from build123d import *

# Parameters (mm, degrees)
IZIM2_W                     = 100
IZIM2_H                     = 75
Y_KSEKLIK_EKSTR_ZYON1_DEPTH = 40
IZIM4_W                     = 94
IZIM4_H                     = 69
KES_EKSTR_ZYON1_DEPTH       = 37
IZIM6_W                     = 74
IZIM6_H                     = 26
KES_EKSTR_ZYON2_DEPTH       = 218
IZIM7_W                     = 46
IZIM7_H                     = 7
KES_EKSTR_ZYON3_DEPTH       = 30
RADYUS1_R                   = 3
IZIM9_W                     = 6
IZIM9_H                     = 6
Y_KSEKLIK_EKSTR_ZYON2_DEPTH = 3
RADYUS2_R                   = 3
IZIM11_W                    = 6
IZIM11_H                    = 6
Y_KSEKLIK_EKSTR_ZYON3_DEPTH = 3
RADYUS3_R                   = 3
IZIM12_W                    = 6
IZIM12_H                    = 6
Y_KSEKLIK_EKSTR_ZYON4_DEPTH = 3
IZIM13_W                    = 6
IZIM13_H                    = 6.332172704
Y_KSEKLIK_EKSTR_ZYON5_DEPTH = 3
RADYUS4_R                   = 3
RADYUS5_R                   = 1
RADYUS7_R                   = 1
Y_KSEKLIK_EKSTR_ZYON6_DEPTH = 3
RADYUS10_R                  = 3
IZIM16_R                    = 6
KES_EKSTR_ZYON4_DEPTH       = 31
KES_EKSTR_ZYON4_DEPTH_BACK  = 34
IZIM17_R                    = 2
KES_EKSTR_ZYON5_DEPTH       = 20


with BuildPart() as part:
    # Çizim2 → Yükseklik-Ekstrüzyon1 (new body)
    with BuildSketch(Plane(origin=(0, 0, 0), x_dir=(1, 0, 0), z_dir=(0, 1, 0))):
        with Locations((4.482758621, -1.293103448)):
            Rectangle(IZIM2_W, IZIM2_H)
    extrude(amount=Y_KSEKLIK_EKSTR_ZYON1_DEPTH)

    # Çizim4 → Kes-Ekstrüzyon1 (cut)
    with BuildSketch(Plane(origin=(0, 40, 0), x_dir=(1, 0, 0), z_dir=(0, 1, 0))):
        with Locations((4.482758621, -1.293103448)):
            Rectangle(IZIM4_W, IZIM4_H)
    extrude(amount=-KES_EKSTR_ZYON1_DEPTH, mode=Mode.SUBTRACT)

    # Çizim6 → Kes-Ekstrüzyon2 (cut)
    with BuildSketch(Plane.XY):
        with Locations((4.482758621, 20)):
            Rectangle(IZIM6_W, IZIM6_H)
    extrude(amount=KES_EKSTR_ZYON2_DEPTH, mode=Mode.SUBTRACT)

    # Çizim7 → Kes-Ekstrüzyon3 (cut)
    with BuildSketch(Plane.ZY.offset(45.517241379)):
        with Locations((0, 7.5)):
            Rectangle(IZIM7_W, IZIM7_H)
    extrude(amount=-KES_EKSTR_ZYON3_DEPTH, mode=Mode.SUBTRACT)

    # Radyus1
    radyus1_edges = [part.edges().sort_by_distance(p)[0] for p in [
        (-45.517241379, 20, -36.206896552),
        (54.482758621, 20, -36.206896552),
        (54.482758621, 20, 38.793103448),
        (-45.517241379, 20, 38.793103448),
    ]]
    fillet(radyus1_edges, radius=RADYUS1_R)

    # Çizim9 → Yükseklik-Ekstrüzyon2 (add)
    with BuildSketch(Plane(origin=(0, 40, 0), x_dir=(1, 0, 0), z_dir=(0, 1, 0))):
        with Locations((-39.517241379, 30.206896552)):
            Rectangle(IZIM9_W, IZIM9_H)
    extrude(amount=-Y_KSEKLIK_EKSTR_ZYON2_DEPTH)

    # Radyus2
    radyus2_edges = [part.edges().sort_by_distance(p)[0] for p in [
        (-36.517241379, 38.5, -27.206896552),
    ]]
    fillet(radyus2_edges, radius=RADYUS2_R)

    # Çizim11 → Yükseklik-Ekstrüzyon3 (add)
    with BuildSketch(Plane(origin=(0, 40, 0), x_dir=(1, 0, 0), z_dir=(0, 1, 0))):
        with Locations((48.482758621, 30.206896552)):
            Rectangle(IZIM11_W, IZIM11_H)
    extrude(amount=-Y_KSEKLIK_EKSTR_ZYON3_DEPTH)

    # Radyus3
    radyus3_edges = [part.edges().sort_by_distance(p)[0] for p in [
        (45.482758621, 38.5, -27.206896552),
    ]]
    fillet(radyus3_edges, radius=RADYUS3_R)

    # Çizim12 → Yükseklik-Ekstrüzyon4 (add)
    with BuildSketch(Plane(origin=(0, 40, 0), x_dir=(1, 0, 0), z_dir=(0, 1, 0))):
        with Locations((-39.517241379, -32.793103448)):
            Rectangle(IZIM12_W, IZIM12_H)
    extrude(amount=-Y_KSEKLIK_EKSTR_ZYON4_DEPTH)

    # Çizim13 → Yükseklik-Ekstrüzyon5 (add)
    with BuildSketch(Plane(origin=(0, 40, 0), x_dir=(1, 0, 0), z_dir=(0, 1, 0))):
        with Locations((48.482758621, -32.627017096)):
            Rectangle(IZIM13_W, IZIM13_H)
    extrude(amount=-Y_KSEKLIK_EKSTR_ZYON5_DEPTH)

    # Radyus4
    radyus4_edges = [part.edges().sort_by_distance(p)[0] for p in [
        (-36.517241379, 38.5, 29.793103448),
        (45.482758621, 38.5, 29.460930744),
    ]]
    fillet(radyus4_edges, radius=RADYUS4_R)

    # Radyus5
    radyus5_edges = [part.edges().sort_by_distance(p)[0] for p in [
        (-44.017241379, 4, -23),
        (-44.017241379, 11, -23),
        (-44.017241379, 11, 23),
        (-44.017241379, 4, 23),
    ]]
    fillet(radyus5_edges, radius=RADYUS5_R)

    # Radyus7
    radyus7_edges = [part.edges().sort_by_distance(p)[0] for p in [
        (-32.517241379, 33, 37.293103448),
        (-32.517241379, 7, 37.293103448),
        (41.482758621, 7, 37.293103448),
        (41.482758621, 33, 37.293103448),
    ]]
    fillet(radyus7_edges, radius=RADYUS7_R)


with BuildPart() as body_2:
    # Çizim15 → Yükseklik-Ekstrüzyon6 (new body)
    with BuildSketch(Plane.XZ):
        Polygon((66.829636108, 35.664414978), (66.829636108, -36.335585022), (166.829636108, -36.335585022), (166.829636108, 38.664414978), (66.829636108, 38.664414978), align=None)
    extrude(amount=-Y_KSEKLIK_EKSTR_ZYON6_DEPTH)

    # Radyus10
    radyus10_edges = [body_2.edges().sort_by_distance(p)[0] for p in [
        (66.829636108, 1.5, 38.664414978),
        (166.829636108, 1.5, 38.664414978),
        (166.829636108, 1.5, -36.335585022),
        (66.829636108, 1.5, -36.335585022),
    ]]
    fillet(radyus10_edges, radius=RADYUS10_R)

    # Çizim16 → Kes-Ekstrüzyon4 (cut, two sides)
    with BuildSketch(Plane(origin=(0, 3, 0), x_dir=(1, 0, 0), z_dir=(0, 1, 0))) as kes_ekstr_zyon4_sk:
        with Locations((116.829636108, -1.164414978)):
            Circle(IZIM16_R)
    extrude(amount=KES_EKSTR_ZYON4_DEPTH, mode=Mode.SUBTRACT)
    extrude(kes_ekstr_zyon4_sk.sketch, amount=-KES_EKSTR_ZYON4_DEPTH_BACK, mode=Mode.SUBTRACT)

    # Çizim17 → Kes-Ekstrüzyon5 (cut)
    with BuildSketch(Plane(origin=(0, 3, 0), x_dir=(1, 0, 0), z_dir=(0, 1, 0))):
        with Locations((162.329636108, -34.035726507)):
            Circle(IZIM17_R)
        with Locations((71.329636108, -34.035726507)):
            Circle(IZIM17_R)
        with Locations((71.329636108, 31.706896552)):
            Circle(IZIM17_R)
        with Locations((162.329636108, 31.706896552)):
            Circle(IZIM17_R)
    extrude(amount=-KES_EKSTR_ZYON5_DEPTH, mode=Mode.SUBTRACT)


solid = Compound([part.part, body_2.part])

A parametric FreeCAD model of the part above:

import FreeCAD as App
import Part
import Sketcher
Q = App.Units.Quantity


def edges_at(feature, points):
    """Names of the edges that pass closest to the given points."""
    edges = feature.Shape.Edges
    near = lambda p: min(range(len(edges)), key=lambda i: edges[i].distToShape(Part.Vertex(*p))[0])
    return sorted({f"Edge{near(p) + 1}" for p in points})


def add_polygon(sketch, points):
    """Adds a closed chain of lines whose ends are joined by coincident constraints."""
    first, n = sketch.GeometryCount, len(points)
    for a, b in zip(points, points[1:] + points[:1]):
        sketch.addGeometry(Part.LineSegment(App.Vector(*a, 0), App.Vector(*b, 0)), False)
    for i in range(n):
        sketch.addConstraint(Sketcher.Constraint("Coincident", first + i, 2, first + (i + 1) % n, 1))

doc = App.newDocument("Part")
body = doc.addObject("PartDesign::Body", "Body")

# Sketch on XZ plane
sketch1 = doc.addObject("Sketcher::SketchObject", "Sketch")
body.addObject(sketch1)
sketch1.AttachmentSupport = (doc.XZ_Plane, [""])
sketch1.MapMode = "FlatFace"
add_polygon(sketch1, [(-46, -36), (-46, 39), (54, 39), (54, -36)])  # lines 0-3
sketch1.addConstraint([
    Sketcher.Constraint("Vertical", 0),
    Sketcher.Constraint("Horizontal", 1),
    Sketcher.Constraint("Vertical", 2),
    Sketcher.Constraint("Horizontal", 3),
    Sketcher.Constraint("DistanceX", 1, 1, 1, 2, Q("100 mm")),
    Sketcher.Constraint("DistanceY", 0, 1, 0, 2, Q("75 mm")),
    Sketcher.Constraint("DistanceX", 0, 2, -1, 1, Q("45.517241 mm")),
    Sketcher.Constraint("DistanceY", -1, 1, 0, 2, Q("38.793103 mm")),
])
pad1 = doc.addObject("PartDesign::Pad", "Pad")
body.addObject(pad1)
pad1.Profile = sketch1
pad1.Length = 40
pad1.Reversed = True

# Sketch on XZ plane
sketch2 = doc.addObject("Sketcher::SketchObject", "Sketch001")
body.addObject(sketch2)
sketch2.AttachmentSupport = (doc.XZ_Plane, [""])
sketch2.MapMode = "FlatFace"
sketch2.AttachmentOffset = App.Placement(App.Vector(0, 0, -40), App.Rotation())
add_polygon(sketch2, [(-43, -33), (-43, 36), (51, 36), (51, -33)])  # lines 0-3
sketch2.addConstraint([
    Sketcher.Constraint("Vertical", 0),
    Sketcher.Constraint("Horizontal", 1),
    Sketcher.Constraint("Vertical", 2),
    Sketcher.Constraint("Horizontal", 3),
    Sketcher.Constraint("DistanceX", 1, 1, 1, 2, Q("94 mm")),
    Sketcher.Constraint("DistanceY", 0, 1, 0, 2, Q("69 mm")),
    Sketcher.Constraint("DistanceX", 0, 2, -1, 1, Q("42.517241 mm")),
    Sketcher.Constraint("DistanceY", -1, 1, 0, 2, Q("35.793103 mm")),
])
pocket1 = doc.addObject("PartDesign::Pocket", "Pocket")
body.addObject(pocket1)
pocket1.Profile = sketch2
pocket1.Length = 37
pocket1.Reversed = True

# Sketch on XY plane
sketch3 = doc.addObject("Sketcher::SketchObject", "Sketch002")
body.addObject(sketch3)
sketch3.AttachmentSupport = (doc.XY_Plane, [""])
sketch3.MapMode = "FlatFace"
add_polygon(sketch3, [(-33, 33), (-33, 7), (41, 7), (41, 33)])  # lines 0-3
sketch3.addConstraint([
    Sketcher.Constraint("Vertical", 0),
    Sketcher.Constraint("Horizontal", 1),
    Sketcher.Constraint("Vertical", 2),
    Sketcher.Constraint("Horizontal", 3),
    Sketcher.Constraint("DistanceX", 1, 1, 1, 2, Q("74 mm")),
    Sketcher.Constraint("DistanceY", 0, 2, 0, 1, Q("26 mm")),
    Sketcher.Constraint("DistanceY", -1, 1, 0, 2, Q("7 mm")),
    Sketcher.Constraint("DistanceX", 0, 2, -1, 1, Q("32.517241 mm")),
])
pocket2 = doc.addObject("PartDesign::Pocket", "Pocket001")
body.addObject(pocket2)
pocket2.Profile = sketch3
pocket2.Length = 218
pocket2.Reversed = True

# Sketch on YZ plane
sketch4 = doc.addObject("Sketcher::SketchObject", "Sketch003")
body.addObject(sketch4)
sketch4.AttachmentSupport = (doc.YZ_Plane, [""])
sketch4.MapMode = "FlatFace"
sketch4.AttachmentOffset = App.Placement(App.Vector(0, 0, -45.517241), App.Rotation())
add_polygon(sketch4, [(11, -23), (4, -23), (4, 23), (11, 23)])  # lines 0-3
sketch4.addConstraint([
    Sketcher.Constraint("Horizontal", 0),
    Sketcher.Constraint("Vertical", 1),
    Sketcher.Constraint("Horizontal", 2),
    Sketcher.Constraint("Vertical", 3),
    Sketcher.Constraint("DistanceX", 0, 2, 0, 1, Q("7 mm")),
    Sketcher.Constraint("DistanceY", 1, 1, 1, 2, Q("46 mm")),
    Sketcher.Constraint("DistanceX", -1, 1, 0, 2, Q("4 mm")),
    Sketcher.Constraint("DistanceY", 0, 2, -1, 1, Q("23 mm")),
])
pocket3 = doc.addObject("PartDesign::Pocket", "Pocket002")
body.addObject(pocket3)
pocket3.Profile = sketch4
pocket3.Length = 30
pocket3.Reversed = True
doc.recompute()

fillet = doc.addObject("PartDesign::Fillet", "Fillet")
body.addObject(fillet)
fillet.Base = (pocket3, edges_at(pocket3, [
    (-45.517, 20, -36.207),
    (54.483, 20, -36.207),
    (54.483, 20, 38.793),
    (-45.517, 20, 38.793),
]))
fillet.Radius = 3

# Sketch on XZ plane
sketch5 = doc.addObject("Sketcher::SketchObject", "Sketch004")
body.addObject(sketch5)
sketch5.AttachmentSupport = (doc.XZ_Plane, [""])
sketch5.MapMode = "FlatFace"
sketch5.AttachmentOffset = App.Placement(App.Vector(0, 0, -40), App.Rotation())
add_polygon(sketch5, [(-43, -33), (-43, -27), (-37, -27), (-37, -33)])  # lines 0-3
sketch5.addConstraint([
    Sketcher.Constraint("Vertical", 0),
    Sketcher.Constraint("Horizontal", 1),
    Sketcher.Constraint("Vertical", 2),
    Sketcher.Constraint("Horizontal", 3),
    Sketcher.Constraint("Equal", 3, 0),
    Sketcher.Constraint("DistanceX", 1, 1, 1, 2, Q("6 mm")),
    Sketcher.Constraint("DistanceX", 0, 2, -1, 1, Q("42.517241 mm")),
    Sketcher.Constraint("DistanceY", 0, 2, -1, 1, Q("27.206897 mm")),
])
pad2 = doc.addObject("PartDesign::Pad", "Pad001")
body.addObject(pad2)
pad2.Profile = sketch5
pad2.Length = 3
doc.recompute()

fillet2 = doc.addObject("PartDesign::Fillet", "Fillet001")
body.addObject(fillet2)
fillet2.Base = (pad2, edges_at(pad2, [(-36.517, 38.5, -27.207)]))
fillet2.Radius = 3

# Sketch on XZ plane
sketch6 = doc.addObject("Sketcher::SketchObject", "Sketch005")
body.addObject(sketch6)
sketch6.AttachmentSupport = (doc.XZ_Plane, [""])
sketch6.MapMode = "FlatFace"
sketch6.AttachmentOffset = App.Placement(App.Vector(0, 0, -40), App.Rotation())
add_polygon(sketch6, [(45, -33), (45, -27), (51, -27), (51, -33)])  # lines 0-3
sketch6.addConstraint([
    Sketcher.Constraint("Vertical", 0),
    Sketcher.Constraint("Horizontal", 1),
    Sketcher.Constraint("Vertical", 2),
    Sketcher.Constraint("Horizontal", 3),
    Sketcher.Constraint("Equal", 3, 0),
    Sketcher.Constraint("DistanceX", 1, 1, 1, 2, Q("6 mm")),
    Sketcher.Constraint("DistanceX", -1, 1, 0, 2, Q("45.482759 mm")),
    Sketcher.Constraint("DistanceY", 0, 2, -1, 1, Q("27.206897 mm")),
])
pad3 = doc.addObject("PartDesign::Pad", "Pad002")
body.addObject(pad3)
pad3.Profile = sketch6
pad3.Length = 3
doc.recompute()

fillet3 = doc.addObject("PartDesign::Fillet", "Fillet002")
body.addObject(fillet3)
fillet3.Base = (pad3, edges_at(pad3, [(45.483, 38.5, -27.207)]))
fillet3.Radius = 3

# Sketch on XZ plane
sketch7 = doc.addObject("Sketcher::SketchObject", "Sketch006")
body.addObject(sketch7)
sketch7.AttachmentSupport = (doc.XZ_Plane, [""])
sketch7.MapMode = "FlatFace"
sketch7.AttachmentOffset = App.Placement(App.Vector(0, 0, -40), App.Rotation())
add_polygon(sketch7, [(-43, 30), (-43, 36), (-37, 36), (-37, 30)])  # lines 0-3
sketch7.addConstraint([
    Sketcher.Constraint("Vertical", 0),
    Sketcher.Constraint("Horizontal", 1),
    Sketcher.Constraint("Vertical", 2),
    Sketcher.Constraint("Horizontal", 3),
    Sketcher.Constraint("Equal", 3, 0),
    Sketcher.Constraint("DistanceX", 1, 1, 1, 2, Q("6 mm")),
    Sketcher.Constraint("DistanceX", 0, 2, -1, 1, Q("42.517241 mm")),
    Sketcher.Constraint("DistanceY", -1, 1, 0, 2, Q("35.793103 mm")),
])
pad4 = doc.addObject("PartDesign::Pad", "Pad003")
body.addObject(pad4)
pad4.Profile = sketch7
pad4.Length = 3

# Sketch on XZ plane
sketch8 = doc.addObject("Sketcher::SketchObject", "Sketch007")
body.addObject(sketch8)
sketch8.AttachmentSupport = (doc.XZ_Plane, [""])
sketch8.MapMode = "FlatFace"
sketch8.AttachmentOffset = App.Placement(App.Vector(0, 0, -40), App.Rotation())
add_polygon(sketch8, [(45, 29), (45, 36), (51, 36), (51, 29)])  # lines 0-3
sketch8.addConstraint([
    Sketcher.Constraint("Vertical", 0),
    Sketcher.Constraint("Horizontal", 1),
    Sketcher.Constraint("Vertical", 2),
    Sketcher.Constraint("Horizontal", 3),
    Sketcher.Constraint("DistanceX", 1, 1, 1, 2, Q("6 mm")),
    Sketcher.Constraint("DistanceY", 0, 1, 0, 2, Q("6.332173 mm")),
    Sketcher.Constraint("DistanceX", -1, 1, 0, 2, Q("45.482759 mm")),
    Sketcher.Constraint("DistanceY", -1, 1, 2, 2, Q("29.460931 mm")),
])
pad5 = doc.addObject("PartDesign::Pad", "Pad004")
body.addObject(pad5)
pad5.Profile = sketch8
pad5.Length = 3
doc.recompute()

fillet4 = doc.addObject("PartDesign::Fillet", "Fillet003")
body.addObject(fillet4)
fillet4.Base = (pad5, edges_at(pad5, [(-36.517, 38.5, 29.793), (45.483, 38.5, 29.461)]))
fillet4.Radius = 3
doc.recompute()

fillet5 = doc.addObject("PartDesign::Fillet", "Fillet004")
body.addObject(fillet5)
fillet5.Base = (fillet4, edges_at(fillet4, [
    (-44.017, 4, -23),
    (-44.017, 11, -23),
    (-44.017, 11, 23),
    (-44.017, 4, 23),
]))
fillet5.Radius = 1
doc.recompute()

fillet6 = doc.addObject("PartDesign::Fillet", "Fillet005")
body.addObject(fillet6)
fillet6.Base = (fillet5, edges_at(fillet5, [
    (-32.517, 33, 37.293),
    (-32.517, 7, 37.293),
    (41.483, 7, 37.293),
    (41.483, 33, 37.293),
]))
fillet6.Radius = 1
body2 = doc.addObject("PartDesign::Body", "Body001")

# Sketch on XZ plane
sketch9 = doc.addObject("Sketcher::SketchObject", "Sketch008")
body2.addObject(sketch9)
sketch9.AttachmentSupport = (doc.getObject("XZ_Plane001"), [""])
sketch9.MapMode = "FlatFace"
add_polygon(sketch9, [(67, -36), (167, -36), (167, 39), (67, 39)])  # lines 0-3
sketch9.addConstraint([
    Sketcher.Constraint("Horizontal", 0),
    Sketcher.Constraint("Vertical", 1),
    Sketcher.Constraint("Horizontal", 2),
    Sketcher.Constraint("Vertical", 3),
    Sketcher.Constraint("DistanceX", 0, 1, 0, 2, Q("100 mm")),
    Sketcher.Constraint("DistanceY", 1, 1, 1, 2, Q("75 mm")),
    Sketcher.Constraint("DistanceX", -1, 1, 0, 2, Q("166.829636 mm")),
    Sketcher.Constraint("DistanceY", 0, 2, -1, 1, Q("36.335585 mm")),
])
pad6 = doc.addObject("PartDesign::Pad", "Pad005")
body2.addObject(pad6)
pad6.Profile = sketch9
pad6.Length = 3
pad6.Reversed = True
doc.recompute()

fillet7 = doc.addObject("PartDesign::Fillet", "Fillet006")
body2.addObject(fillet7)
fillet7.Base = (pad6, edges_at(pad6, [
    (66.83, 1.5, 38.664),
    (166.83, 1.5, 38.664),
    (166.83, 1.5, -36.336),
    (66.83, 1.5, -36.336),
]))
fillet7.Radius = 3

# Sketch on XZ plane
sketch10 = doc.addObject("Sketcher::SketchObject", "Sketch009")
body2.addObject(sketch10)
sketch10.AttachmentSupport = (doc.getObject("XZ_Plane001"), [""])
sketch10.MapMode = "FlatFace"
sketch10.AttachmentOffset = App.Placement(App.Vector(0, 0, -3), App.Rotation())
sketch10.addGeometry(Part.Circle(App.Vector(117, 1, 0), App.Vector(0, 0, 1), 6), False)
sketch10.addConstraint([
    Sketcher.Constraint("Diameter", 0, Q("12 mm")),
    Sketcher.Constraint("DistanceX", -1, 1, 0, 3, Q("116.829636 mm")),
    Sketcher.Constraint("DistanceY", -1, 1, 0, 3, Q("1.164415 mm")),
])
pocket4 = doc.addObject("PartDesign::Pocket", "Pocket003")
body2.addObject(pocket4)
pocket4.Profile = sketch10
pocket4.Type = "ThroughAll"
pocket4.Midplane = True

# Sketch on XZ plane
sketch11 = doc.addObject("Sketcher::SketchObject", "Sketch010")
body2.addObject(sketch11)
sketch11.AttachmentSupport = (doc.getObject("XZ_Plane001"), [""])
sketch11.MapMode = "FlatFace"
sketch11.AttachmentOffset = App.Placement(App.Vector(0, 0, -3), App.Rotation())
sketch11.addGeometry([
    Part.Circle(App.Vector(162.3, 34, 0), App.Vector(0, 0, 1), 2),
    Part.Circle(App.Vector(71.3, 34, 0), App.Vector(0, 0, 1), 2),
    Part.Circle(App.Vector(71.3, -31.7, 0), App.Vector(0, 0, 1), 2),
    Part.Circle(App.Vector(162.3, -31.7, 0), App.Vector(0, 0, 1), 2),
], False)
sketch11.addConstraint([
    Sketcher.Constraint("Equal", 0, 1),
    Sketcher.Constraint("Equal", 1, 2),
    Sketcher.Constraint("Equal", 2, 3),
    Sketcher.Constraint("Horizontal", 0, 3, 1, 3),
    Sketcher.Constraint("Horizontal", 2, 3, 3, 3),
    Sketcher.Constraint("Vertical", 1, 3, 2, 3),
    Sketcher.Constraint("Vertical", 0, 3, 3, 3),
    Sketcher.Constraint("Diameter", 0, Q("4 mm")),
    Sketcher.Constraint("DistanceX", 1, 3, 0, 3, Q("91 mm")),
    Sketcher.Constraint("DistanceX", -1, 1, 0, 3, Q("162.329636 mm")),
    Sketcher.Constraint("DistanceY", -1, 1, 0, 3, Q("34.035727 mm")),
    Sketcher.Constraint("DistanceY", 2, 3, -1, 1, Q("31.706897 mm")),
])
pocket5 = doc.addObject("PartDesign::Pocket", "Pocket004")
body2.addObject(pocket5)
pocket5.Profile = sketch11
pocket5.Length = 20
pocket5.Reversed = True

doc.recompute()
